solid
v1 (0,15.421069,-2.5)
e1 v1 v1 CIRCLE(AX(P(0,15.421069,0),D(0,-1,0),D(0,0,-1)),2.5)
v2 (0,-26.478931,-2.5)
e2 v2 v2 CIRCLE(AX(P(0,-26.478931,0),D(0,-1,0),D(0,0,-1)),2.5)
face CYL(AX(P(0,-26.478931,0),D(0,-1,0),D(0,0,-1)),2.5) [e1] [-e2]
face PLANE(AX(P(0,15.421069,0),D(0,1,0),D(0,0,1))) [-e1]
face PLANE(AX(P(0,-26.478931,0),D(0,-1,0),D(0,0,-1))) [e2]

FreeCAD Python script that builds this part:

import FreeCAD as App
import Part
import Sketcher

V = App.Vector
Q = App.Units.Quantity


def add_polygon(sketch, points):
    """Adds a closed chain of lines whose ends are joined by coincident constraints."""
    first, n = sketch.GeometryCount, len(points)
    for a, b in zip(points, points[1:] + points[:1]):
        sketch.addGeometry(Part.LineSegment(App.Vector(*a, 0), App.Vector(*b, 0)), False)
    for i in range(n):
        sketch.addConstraint(Sketcher.Constraint("Coincident", first + i, 2, first + (i + 1) % n, 1))

doc = App.newDocument("Part")
body = doc.addObject("PartDesign::Body", "Body")

# Sketch on XY plane
sketch1 = doc.addObject("Sketcher::SketchObject", "Sketch")
body.addObject(sketch1)
sketch1.AttachmentSupport = (doc.XY_Plane, [""])
sketch1.MapMode = "FlatFace"
add_polygon(sketch1, [(0, 15.4), (0, -26.5), (2.5, -26.5), (2.5, 15.4)])  # lines 0-3
sketch1.addConstraint([
    Sketcher.Constraint("Vertical", 0),
    Sketcher.Constraint("Horizontal", 1),
    Sketcher.Constraint("Vertical", 2),
    Sketcher.Constraint("Horizontal", 3),
    Sketcher.Constraint("PointOnObject", 0, 2, -2),
    Sketcher.Constraint("DistanceX", 1, 1, 1, 2, Q("2.5 mm")),
    Sketcher.Constraint("DistanceY", 0, 2, 0, 1, Q("41.9 mm")),
    Sketcher.Constraint("DistanceY", 0, 2, -1, 1, Q("26.478931 mm")),
])
revolution = doc.addObject("PartDesign::Revolution", "Revolution")
body.addObject(revolution)
revolution.Profile = sketch1
revolution.ReferenceAxis = (sketch1, ["V_Axis"])
revolution.Angle = 360

doc.recompute()
